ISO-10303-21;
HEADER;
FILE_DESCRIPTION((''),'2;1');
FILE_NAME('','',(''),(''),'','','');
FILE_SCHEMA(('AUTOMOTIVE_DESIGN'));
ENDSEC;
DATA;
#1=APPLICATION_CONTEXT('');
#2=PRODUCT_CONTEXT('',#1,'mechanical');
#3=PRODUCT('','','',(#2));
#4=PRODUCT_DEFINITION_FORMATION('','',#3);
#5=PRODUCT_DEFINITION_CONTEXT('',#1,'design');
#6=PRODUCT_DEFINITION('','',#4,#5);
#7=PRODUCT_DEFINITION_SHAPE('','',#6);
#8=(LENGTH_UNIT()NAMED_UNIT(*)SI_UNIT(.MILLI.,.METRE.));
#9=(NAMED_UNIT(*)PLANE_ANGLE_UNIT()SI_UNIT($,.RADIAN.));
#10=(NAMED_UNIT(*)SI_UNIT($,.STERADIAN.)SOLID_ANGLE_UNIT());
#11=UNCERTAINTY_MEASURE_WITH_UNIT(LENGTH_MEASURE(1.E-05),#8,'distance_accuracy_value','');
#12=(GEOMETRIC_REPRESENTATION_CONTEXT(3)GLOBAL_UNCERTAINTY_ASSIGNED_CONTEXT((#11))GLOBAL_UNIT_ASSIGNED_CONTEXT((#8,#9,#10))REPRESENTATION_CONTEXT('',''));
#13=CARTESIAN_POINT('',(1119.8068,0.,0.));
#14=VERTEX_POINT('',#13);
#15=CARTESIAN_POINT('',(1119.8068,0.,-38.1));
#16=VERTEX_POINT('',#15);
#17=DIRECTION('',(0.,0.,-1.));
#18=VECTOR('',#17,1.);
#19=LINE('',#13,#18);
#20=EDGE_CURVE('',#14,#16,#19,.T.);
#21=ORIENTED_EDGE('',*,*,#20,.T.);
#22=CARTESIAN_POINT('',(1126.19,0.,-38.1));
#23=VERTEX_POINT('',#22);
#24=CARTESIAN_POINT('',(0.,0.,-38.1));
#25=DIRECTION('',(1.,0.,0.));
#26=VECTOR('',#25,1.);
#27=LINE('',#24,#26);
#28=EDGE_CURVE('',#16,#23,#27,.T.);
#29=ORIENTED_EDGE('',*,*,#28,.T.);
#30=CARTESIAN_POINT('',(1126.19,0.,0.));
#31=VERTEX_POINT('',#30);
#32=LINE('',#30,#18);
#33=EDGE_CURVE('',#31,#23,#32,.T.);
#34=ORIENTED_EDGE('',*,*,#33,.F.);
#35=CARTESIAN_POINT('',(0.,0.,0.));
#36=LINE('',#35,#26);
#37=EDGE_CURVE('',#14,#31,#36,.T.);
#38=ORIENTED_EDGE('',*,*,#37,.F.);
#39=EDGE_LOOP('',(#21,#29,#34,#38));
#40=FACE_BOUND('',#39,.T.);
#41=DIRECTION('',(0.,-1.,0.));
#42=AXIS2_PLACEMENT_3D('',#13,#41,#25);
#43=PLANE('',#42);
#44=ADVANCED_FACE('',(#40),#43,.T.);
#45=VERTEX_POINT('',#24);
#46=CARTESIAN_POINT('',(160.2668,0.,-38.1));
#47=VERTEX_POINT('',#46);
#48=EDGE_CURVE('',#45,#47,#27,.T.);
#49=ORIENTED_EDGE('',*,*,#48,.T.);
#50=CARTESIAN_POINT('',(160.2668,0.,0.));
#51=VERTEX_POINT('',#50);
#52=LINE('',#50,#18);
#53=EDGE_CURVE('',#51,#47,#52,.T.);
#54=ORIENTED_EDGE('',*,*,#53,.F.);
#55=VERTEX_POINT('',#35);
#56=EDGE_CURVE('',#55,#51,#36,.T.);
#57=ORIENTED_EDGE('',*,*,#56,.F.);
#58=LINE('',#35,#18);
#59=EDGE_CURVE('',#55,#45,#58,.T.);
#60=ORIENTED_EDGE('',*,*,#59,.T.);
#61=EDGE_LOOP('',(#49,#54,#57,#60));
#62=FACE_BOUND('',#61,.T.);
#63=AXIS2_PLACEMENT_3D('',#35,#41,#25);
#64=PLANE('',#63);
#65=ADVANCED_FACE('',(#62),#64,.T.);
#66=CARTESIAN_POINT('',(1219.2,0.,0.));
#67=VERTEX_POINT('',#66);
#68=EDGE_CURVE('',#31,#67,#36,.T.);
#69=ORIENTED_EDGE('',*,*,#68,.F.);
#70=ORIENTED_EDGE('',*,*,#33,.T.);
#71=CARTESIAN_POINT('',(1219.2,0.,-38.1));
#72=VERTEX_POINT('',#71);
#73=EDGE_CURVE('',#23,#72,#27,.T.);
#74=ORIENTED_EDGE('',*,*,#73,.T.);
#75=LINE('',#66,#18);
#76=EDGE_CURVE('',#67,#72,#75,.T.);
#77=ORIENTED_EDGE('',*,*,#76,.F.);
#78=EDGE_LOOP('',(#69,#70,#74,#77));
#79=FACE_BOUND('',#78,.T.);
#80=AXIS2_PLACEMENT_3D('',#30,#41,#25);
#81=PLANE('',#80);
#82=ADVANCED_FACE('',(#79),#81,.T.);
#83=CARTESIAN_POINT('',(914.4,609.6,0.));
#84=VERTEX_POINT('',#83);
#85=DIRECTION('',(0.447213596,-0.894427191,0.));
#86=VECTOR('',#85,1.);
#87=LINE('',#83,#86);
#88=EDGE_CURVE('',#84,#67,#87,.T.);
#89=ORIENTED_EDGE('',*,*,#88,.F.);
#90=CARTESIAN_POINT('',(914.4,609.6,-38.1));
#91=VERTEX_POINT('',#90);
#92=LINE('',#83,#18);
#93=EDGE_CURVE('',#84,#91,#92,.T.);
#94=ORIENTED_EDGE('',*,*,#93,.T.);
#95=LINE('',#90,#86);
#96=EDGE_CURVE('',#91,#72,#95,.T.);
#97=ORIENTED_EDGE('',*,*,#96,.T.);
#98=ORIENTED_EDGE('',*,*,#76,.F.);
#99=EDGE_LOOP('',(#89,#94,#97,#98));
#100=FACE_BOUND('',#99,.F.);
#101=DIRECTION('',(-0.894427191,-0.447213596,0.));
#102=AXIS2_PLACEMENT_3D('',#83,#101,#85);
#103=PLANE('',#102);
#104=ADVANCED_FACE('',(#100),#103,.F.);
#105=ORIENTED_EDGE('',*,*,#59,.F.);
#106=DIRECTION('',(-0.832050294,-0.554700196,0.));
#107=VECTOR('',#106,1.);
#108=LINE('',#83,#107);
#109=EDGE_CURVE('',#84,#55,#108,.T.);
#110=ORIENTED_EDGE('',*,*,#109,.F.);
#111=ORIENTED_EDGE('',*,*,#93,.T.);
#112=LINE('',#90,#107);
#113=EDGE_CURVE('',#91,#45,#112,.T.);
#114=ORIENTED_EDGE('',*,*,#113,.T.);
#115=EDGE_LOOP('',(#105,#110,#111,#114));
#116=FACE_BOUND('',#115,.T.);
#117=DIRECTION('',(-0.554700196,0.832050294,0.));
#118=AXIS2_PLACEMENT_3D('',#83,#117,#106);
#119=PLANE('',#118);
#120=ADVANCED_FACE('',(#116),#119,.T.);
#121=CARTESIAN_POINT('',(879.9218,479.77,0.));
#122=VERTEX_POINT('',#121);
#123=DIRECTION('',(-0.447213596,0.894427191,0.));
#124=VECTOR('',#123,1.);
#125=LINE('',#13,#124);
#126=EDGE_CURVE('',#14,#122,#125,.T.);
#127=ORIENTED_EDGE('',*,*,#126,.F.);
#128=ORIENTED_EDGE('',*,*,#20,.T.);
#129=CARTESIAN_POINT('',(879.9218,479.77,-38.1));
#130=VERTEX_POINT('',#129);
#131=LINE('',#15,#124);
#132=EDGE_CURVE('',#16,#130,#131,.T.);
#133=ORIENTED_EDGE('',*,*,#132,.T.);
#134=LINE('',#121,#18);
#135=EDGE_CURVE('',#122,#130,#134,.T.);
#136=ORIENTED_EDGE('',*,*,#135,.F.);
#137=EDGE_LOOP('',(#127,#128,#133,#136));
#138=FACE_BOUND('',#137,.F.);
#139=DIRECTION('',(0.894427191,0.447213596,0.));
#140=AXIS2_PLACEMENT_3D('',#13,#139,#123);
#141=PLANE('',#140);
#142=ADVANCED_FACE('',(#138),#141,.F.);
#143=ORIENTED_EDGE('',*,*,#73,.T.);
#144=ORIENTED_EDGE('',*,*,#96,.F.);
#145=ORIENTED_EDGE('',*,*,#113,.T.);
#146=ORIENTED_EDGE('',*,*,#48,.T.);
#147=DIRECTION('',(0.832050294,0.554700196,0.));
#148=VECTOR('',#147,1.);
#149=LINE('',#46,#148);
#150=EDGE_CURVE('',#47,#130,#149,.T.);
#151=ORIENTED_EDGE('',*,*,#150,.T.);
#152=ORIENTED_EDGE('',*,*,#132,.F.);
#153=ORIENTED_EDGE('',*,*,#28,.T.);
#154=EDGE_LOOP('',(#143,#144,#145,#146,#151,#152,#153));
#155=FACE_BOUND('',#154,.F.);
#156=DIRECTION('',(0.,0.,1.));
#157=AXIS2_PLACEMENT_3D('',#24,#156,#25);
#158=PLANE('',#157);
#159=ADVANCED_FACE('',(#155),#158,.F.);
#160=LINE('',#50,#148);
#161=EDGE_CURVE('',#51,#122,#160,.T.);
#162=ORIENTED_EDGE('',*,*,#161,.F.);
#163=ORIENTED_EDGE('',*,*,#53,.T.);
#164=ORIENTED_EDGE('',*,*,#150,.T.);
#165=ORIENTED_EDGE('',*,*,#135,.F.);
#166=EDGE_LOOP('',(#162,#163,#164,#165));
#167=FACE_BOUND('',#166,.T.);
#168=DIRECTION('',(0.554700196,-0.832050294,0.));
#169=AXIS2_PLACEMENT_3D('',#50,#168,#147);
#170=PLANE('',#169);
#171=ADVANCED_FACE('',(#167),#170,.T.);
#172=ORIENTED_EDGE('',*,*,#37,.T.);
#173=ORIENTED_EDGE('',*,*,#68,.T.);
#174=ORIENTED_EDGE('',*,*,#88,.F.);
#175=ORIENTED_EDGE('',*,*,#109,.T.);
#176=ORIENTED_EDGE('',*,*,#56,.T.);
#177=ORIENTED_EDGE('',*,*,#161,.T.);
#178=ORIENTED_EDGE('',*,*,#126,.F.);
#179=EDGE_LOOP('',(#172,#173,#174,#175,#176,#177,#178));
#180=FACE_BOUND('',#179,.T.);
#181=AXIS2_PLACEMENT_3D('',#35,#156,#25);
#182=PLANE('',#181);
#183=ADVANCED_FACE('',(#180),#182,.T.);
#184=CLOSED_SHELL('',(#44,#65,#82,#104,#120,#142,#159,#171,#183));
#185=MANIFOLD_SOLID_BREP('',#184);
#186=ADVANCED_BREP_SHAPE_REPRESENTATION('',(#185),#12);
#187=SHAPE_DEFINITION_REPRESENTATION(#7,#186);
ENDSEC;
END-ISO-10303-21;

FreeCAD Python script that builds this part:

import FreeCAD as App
import Part
import Sketcher
Q = App.Units.Quantity

doc = App.newDocument("Part")
body = doc.addObject("PartDesign::Body", "Body")

sketch1 = doc.addObject("Sketcher::SketchObject", "Sketch")
body.addObject(sketch1)
sketch1.AttachmentSupport = (doc.XY_Plane, [""])
sketch1.MapMode = "FlatFace"
sketch1.addGeometry([
    Part.LineSegment(App.Vector(914, 610, 0), App.Vector(0, 0, 0)),
    Part.LineSegment(App.Vector(0, 0, 0), App.Vector(160, 0, 0)),
    Part.LineSegment(App.Vector(160, 0, 0), App.Vector(880, 480, 0)),
    Part.LineSegment(App.Vector(880, 480, 0), App.Vector(1120, 0, 0)),
    Part.LineSegment(App.Vector(1120, 0, 0), App.Vector(1219, 0, 0)),
    Part.LineSegment(App.Vector(1219, 0, 0), App.Vector(914, 610, 0)),
], False)
sketch1.addConstraint([
    Sketcher.Constraint("Coincident", 0, 2, 1, 1),
    Sketcher.Constraint("Coincident", 1, 2, 2, 1),
    Sketcher.Constraint("Coincident", 2, 2, 3, 1),
    Sketcher.Constraint("Coincident", 3, 2, 4, 1),
    Sketcher.Constraint("Coincident", 4, 2, 5, 1),
    Sketcher.Constraint("Coincident", 5, 2, 0, 1),
    Sketcher.Constraint("Horizontal", 1),
    Sketcher.Constraint("Horizontal", 4),
    Sketcher.Constraint("Coincident", 0, 2, -1, 1),
    Sketcher.Constraint("PointOnObject", 3, 2, -1),
    Sketcher.Constraint("Parallel", 0, 2),
    Sketcher.Constraint("Parallel", 3, 5),
    Sketcher.Constraint("DistanceX", -1, 1, 4, 2, Q("48 in")),
    Sketcher.Constraint("DistanceX", -1, 1, 5, 2, Q("36 in")),
    Sketcher.Constraint("DistanceY", -1, 1, 5, 2, Q("24 in")),
    Sketcher.Constraint("DistanceX", 1, 1, 1, 2, Q("160.2668 mm")),
    Sketcher.Constraint("DistanceX", 4, 1, 4, 2, Q("99.3932 mm")),
])
pad1 = doc.addObject("PartDesign::Pad", "Pad")
body.addObject(pad1)
pad1.Profile = sketch1
pad1.Length = Q("1.5 in")
pad1.Reversed = True

doc.recompute()
